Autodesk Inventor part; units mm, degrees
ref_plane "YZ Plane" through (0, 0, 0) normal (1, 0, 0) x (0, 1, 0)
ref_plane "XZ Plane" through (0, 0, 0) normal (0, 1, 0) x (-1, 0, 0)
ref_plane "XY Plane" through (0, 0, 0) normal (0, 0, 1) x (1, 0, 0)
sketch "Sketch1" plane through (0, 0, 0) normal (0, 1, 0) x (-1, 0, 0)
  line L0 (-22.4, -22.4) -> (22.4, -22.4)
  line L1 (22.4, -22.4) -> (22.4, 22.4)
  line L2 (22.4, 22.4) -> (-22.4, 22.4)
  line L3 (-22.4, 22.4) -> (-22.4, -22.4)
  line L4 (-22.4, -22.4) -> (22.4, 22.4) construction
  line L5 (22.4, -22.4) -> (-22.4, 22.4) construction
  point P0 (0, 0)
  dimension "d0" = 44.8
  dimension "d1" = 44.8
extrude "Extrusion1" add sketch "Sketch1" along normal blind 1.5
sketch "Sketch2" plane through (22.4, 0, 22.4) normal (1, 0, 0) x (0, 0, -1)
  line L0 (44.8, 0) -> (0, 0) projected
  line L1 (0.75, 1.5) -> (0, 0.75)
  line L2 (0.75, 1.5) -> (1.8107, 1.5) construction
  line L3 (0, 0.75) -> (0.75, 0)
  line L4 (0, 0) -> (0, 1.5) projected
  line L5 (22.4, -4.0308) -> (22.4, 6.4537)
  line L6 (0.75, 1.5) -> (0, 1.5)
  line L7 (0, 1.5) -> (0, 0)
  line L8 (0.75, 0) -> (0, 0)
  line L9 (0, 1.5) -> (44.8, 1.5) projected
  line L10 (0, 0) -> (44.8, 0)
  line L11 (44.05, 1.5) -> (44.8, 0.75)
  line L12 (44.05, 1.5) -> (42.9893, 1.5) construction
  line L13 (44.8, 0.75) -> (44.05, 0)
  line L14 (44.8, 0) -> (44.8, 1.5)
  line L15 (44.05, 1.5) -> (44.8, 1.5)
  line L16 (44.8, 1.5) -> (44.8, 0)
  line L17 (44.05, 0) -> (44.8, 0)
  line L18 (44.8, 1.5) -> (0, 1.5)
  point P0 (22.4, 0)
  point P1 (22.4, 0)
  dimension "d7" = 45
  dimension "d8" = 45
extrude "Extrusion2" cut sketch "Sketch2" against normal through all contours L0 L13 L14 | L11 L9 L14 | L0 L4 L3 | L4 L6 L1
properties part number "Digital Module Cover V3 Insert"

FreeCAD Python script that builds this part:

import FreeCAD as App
import Part
import Sketcher
Q = App.Units.Quantity


def add_polygon(sketch, points):
    """Adds a closed chain of lines whose ends are joined by coincident constraints."""
    first, n = sketch.GeometryCount, len(points)
    for a, b in zip(points, points[1:] + points[:1]):
        sketch.addGeometry(Part.LineSegment(App.Vector(*a, 0), App.Vector(*b, 0)), False)
    for i in range(n):
        sketch.addConstraint(Sketcher.Constraint("Coincident", first + i, 2, first + (i + 1) % n, 1))

doc = App.newDocument("Part")
body = doc.addObject("PartDesign::Body", "Body")

sketch1 = doc.addObject("Sketcher::SketchObject", "Sketch")
body.addObject(sketch1)
sketch1.AttachmentSupport = (doc.XZ_Plane, [""])
sketch1.MapMode = "FlatFace"
add_polygon(sketch1, [(22.4, 22.4), (22.4, -22.4), (-22.4, -22.4), (-22.4, 22.4)])
sketch1.addConstraint(Sketcher.Constraint("Vertical", 0))
sketch1.addConstraint(Sketcher.Constraint("Horizontal", 1))
sketch1.addConstraint(Sketcher.Constraint("Vertical", 2))
sketch1.addConstraint(Sketcher.Constraint("Horizontal", 3))
sketch1.addConstraint(Sketcher.Constraint("Symmetric", 0, 2, 2, 2, -1, 1))
sketch1.addConstraint(Sketcher.Constraint("Equal", 3, 0))
sketch1.addConstraint(Sketcher.Constraint("DistanceX", 1, 2, 1, 1, Q("44.8 mm")))
pad1 = doc.addObject("PartDesign::Pad", "Pad")
body.addObject(pad1)
pad1.Profile = sketch1
pad1.Length = 1.5
pad1.Reversed = True

sketch2 = doc.addObject("Sketcher::SketchObject", "Sketch001")
body.addObject(sketch2)
sketch2.AttachmentSupport = (doc.YZ_Plane, [""])
sketch2.MapMode = "FlatFace"
sketch2.AttachmentOffset = App.Placement(App.Vector(0, 0, 22.4), App.Rotation())
add_polygon(sketch2, [(0, -21.65), (0, -22.4), (0.75, -22.4)])
add_polygon(sketch2, [(1.5, -21.65), (0.75, -22.4), (1.5, -22.4)])
add_polygon(sketch2, [(0, 22.4), (0, 21.65), (0.75, 22.4)])
add_polygon(sketch2, [(1.5, 22.4), (0.75, 22.4), (1.5, 21.65)])
sketch2.addConstraint(Sketcher.Constraint("Vertical", 0))
sketch2.addConstraint(Sketcher.Constraint("Horizontal", 1))
sketch2.addConstraint(Sketcher.Constraint("Horizontal", 4))
sketch2.addConstraint(Sketcher.Constraint("Vertical", 5))
sketch2.addConstraint(Sketcher.Constraint("Vertical", 6))
sketch2.addConstraint(Sketcher.Constraint("Horizontal", 8))
sketch2.addConstraint(Sketcher.Constraint("Horizontal", 9))
sketch2.addConstraint(Sketcher.Constraint("Vertical", 11))
sketch2.addConstraint(Sketcher.Constraint("Coincident", 3, 2, 1, 2))
sketch2.addConstraint(Sketcher.Constraint("Coincident", 9, 2, 7, 2))
sketch2.addConstraint(Sketcher.Constraint("Symmetric", 2, 2, 6, 2, -1, 1))
sketch2.addConstraint(Sketcher.Constraint("Symmetric", 1, 2, 7, 2, -1))
sketch2.addConstraint(Sketcher.Constraint("Symmetric", 5, 2, 10, 2, -1))
sketch2.addConstraint(Sketcher.Constraint("PointOnObject", 0, 2, -2))
sketch2.addConstraint(Sketcher.Constraint("Perpendicular", 2, 3))
sketch2.addConstraint(Sketcher.Constraint("Parallel", 3, 7))
sketch2.addConstraint(Sketcher.Constraint("Horizontal", 2, 2, 5, 2))
sketch2.addConstraint(Sketcher.Constraint("DistanceX", 1, 1, 1, 2, Q("0.75 mm")))
sketch2.addConstraint(Sketcher.Constraint("DistanceY", 0, 2, -1, 1, Q("22.4 mm")))
pocket1 = doc.addObject("PartDesign::Pocket", "Pocket")
body.addObject(pocket1)
pocket1.Profile = sketch2
pocket1.Type = "ThroughAll"

doc.recompute()
